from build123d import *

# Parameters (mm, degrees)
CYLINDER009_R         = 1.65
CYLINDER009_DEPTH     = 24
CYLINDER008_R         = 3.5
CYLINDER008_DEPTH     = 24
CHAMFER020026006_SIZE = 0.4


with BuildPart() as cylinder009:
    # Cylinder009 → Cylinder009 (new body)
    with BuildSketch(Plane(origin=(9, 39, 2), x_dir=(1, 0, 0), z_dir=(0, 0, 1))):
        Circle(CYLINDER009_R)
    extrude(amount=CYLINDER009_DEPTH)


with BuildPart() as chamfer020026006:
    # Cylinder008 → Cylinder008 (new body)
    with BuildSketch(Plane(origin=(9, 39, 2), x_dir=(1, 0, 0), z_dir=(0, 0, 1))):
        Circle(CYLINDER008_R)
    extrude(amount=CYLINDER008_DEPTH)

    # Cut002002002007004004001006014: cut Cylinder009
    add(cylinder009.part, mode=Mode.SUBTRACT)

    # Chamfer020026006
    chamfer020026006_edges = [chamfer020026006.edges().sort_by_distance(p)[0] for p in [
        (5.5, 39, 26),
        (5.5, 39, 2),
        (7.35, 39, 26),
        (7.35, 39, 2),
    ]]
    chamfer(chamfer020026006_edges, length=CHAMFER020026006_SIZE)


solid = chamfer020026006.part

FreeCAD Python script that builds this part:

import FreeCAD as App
import Part
import Sketcher

V = App.Vector


def edges_at(feature, points):
    """Names of the edges that pass closest to the given points."""
    edges = feature.Shape.Edges
    near = lambda p: min(range(len(edges)), key=lambda i: edges[i].distToShape(Part.Vertex(*p))[0])
    return sorted({f"Edge{near(p) + 1}" for p in points})

doc = App.newDocument("Part")
body = doc.addObject("PartDesign::Body", "Body")

sketch1 = body.newObject("Sketcher::SketchObject", "Sketch")
sketch1.AttachmentSupport = (doc.getObject("XY_Plane"), [""])
sketch1.MapMode = "FlatFace"
sketch1.AttachmentOffset = App.Placement(V(0, 0, 2), App.Rotation())
sketch1.addGeometry(Part.Circle(V(9, 39, 0), V(0, 0, 1), 1.65), False)
sketch1.addConstraint([
    Sketcher.Constraint("Diameter", 0, 3.3),
    Sketcher.Constraint("DistanceX", -1, 1, 0, 3, 9.0),
    Sketcher.Constraint("DistanceY", -1, 1, 0, 3, 39.0),
])
pad1 = body.newObject("PartDesign::Pad", "Pad")
pad1.Profile = sketch1
pad1.Length = 24
body2 = doc.addObject("PartDesign::Body", "Body001")

sketch2 = body2.newObject("Sketcher::SketchObject", "Sketch001")
sketch2.AttachmentSupport = (doc.getObject("XY_Plane001"), [""])
sketch2.MapMode = "FlatFace"
sketch2.AttachmentOffset = App.Placement(V(0, 0, 2), App.Rotation())
sketch2.addGeometry(Part.Circle(V(9, 39, 0), V(0, 0, 1), 3.5), False)
sketch2.addConstraint([
    Sketcher.Constraint("Diameter", 0, 7.0),
    Sketcher.Constraint("DistanceX", -1, 1, 0, 3, 9.0),
    Sketcher.Constraint("DistanceY", -1, 1, 0, 3, 39.0),
])
pad2 = body2.newObject("PartDesign::Pad", "Pad001")
pad2.Profile = sketch2
pad2.Length = 24
doc.recompute()

boolean = body2.newObject("PartDesign::Boolean", "Boolean")
boolean.Type = "Cut"
boolean.addObjects([body])
doc.recompute()

chamfer = body2.newObject("PartDesign::Chamfer", "Chamfer")
chamfer.Base = (boolean, edges_at(boolean, [
    (5.5, 39, 26),
    (5.5, 39, 2),
    (7.35, 39, 26),
    (7.35, 39, 2),
]))
chamfer.Size = 0.4

doc.recompute()
